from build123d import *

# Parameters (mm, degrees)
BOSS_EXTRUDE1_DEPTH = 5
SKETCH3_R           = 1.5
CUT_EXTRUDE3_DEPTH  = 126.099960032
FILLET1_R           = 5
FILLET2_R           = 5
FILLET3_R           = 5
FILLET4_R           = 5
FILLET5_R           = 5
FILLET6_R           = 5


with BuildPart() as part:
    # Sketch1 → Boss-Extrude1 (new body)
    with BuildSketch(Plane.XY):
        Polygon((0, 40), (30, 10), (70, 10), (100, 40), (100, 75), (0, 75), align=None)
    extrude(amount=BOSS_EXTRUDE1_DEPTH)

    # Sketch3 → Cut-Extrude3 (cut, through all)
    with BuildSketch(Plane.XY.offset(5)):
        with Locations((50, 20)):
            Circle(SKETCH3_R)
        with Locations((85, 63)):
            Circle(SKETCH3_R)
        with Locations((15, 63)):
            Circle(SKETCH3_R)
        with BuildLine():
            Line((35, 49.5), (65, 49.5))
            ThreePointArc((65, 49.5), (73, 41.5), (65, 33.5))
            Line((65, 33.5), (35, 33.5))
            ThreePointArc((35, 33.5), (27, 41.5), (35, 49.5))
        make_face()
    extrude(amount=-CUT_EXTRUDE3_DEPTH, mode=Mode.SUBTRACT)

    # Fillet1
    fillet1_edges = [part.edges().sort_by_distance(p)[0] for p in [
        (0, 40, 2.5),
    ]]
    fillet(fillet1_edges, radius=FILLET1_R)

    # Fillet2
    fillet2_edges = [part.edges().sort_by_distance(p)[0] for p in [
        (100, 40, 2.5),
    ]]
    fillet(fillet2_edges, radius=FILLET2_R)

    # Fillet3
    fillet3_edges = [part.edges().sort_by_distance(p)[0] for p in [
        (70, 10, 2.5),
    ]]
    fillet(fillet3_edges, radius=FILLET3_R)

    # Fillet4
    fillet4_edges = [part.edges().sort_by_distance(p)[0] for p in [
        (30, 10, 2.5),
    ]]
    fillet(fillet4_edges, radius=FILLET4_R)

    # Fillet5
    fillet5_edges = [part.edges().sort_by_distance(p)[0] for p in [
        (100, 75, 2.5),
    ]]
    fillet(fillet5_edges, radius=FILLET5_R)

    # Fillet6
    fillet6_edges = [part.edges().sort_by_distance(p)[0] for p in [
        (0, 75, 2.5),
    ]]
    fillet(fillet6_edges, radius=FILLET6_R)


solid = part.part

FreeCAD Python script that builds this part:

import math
import FreeCAD as App
import Part
import Sketcher

V = App.Vector
Q = App.Units.Quantity


def edges_at(feature, points):
    """Names of the edges that pass closest to the given points."""
    edges = feature.Shape.Edges
    near = lambda p: min(range(len(edges)), key=lambda i: edges[i].distToShape(Part.Vertex(*p))[0])
    return sorted({f"Edge{near(p) + 1}" for p in points})

doc = App.newDocument("Part")
params = doc.addObject("Spreadsheet::Sheet", "Params")
for row, (alias, value) in enumerate([
    ("sketch1_width", "40 mm"),
    ("sketch1_width2", "100 mm"),
    ("sketch1_height", "35 mm"),
    ("pad1_length", "5 mm"),
    ("sketch2_diameter", "3 mm"),
    ("sketch2_radius", "8 mm"),
    ("sketch2_width", "30 mm"),
    ("fillet_radius", "5 mm"),
    ("fillet2_radius", "5 mm"),
    ("fillet3_radius", "5 mm"),
    ("fillet4_radius", "5 mm"),
    ("fillet5_radius", "5 mm"),
    ("fillet6_radius", "5 mm"),
], start=1):
    params.set(f"A{row}", alias)
    params.set(f"B{row}", "=" + value)
    params.setAlias(f"B{row}", alias)

body = doc.addObject("PartDesign::Body", "Body")

# Sketch on XY plane
sketch1 = body.newObject("Sketcher::SketchObject", "Sketch")
sketch1.AttachmentSupport = (doc.getObject("XY_Plane"), [""])
sketch1.MapMode = "FlatFace"
sketch1.addGeometry([
    Part.LineSegment(V(0, 40, 0), V(30, 10, 0)),  # 0
    Part.LineSegment(V(30, 10, 0), V(70, 10, 0)),  # 1
    Part.LineSegment(V(70, 10, 0), V(100, 40, 0)),  # 2
    Part.LineSegment(V(100, 40, 0), V(100, 75, 0)),  # 3
    Part.LineSegment(V(100, 75, 0), V(0, 75, 0)),  # 4
    Part.LineSegment(V(0, 75, 0), V(0, 40, 0)),  # 5
], False)
sketch1.addConstraint([
    Sketcher.Constraint("Coincident", 0, 2, 1, 1),
    Sketcher.Constraint("Coincident", 1, 2, 2, 1),
    Sketcher.Constraint("Coincident", 2, 2, 3, 1),
    Sketcher.Constraint("Coincident", 3, 2, 4, 1),
    Sketcher.Constraint("Coincident", 4, 2, 5, 1),
    Sketcher.Constraint("Coincident", 5, 2, 0, 1),
    Sketcher.Constraint("Horizontal", 1),
    Sketcher.Constraint("Vertical", 3),
    Sketcher.Constraint("Horizontal", 4),
    Sketcher.Constraint("Vertical", 5),
    Sketcher.Constraint("PointOnObject", 4, 2, -2),
    Sketcher.Constraint("Perpendicular", 0, 2),
    Sketcher.Constraint("Horizontal", 2, 2, 5, 2),
    Sketcher.Constraint("Equal", 0, 2),
    Sketcher.Constraint("DistanceX", 1, 1, 1, 2, Q("40 mm")),
    Sketcher.Constraint("DistanceX", 4, 2, 4, 1, Q("100 mm")),
    Sketcher.Constraint("DistanceY", 3, 1, 3, 2, Q("35 mm")),
    Sketcher.Constraint("DistanceY", -1, 1, 0, 2, Q("10 mm")),
])
sketch1.setExpression("Constraints[14]", "Params.sketch1_width")
sketch1.setExpression("Constraints[15]", "Params.sketch1_width2")
sketch1.setExpression("Constraints[16]", "Params.sketch1_height")
pad1 = body.newObject("PartDesign::Pad", "Pad")
pad1.Profile = sketch1
pad1.setExpression("Length", "Params.pad1_length")

# Sketch on XY plane
sketch2 = body.newObject("Sketcher::SketchObject", "Sketch001")
sketch2.AttachmentSupport = (doc.getObject("XY_Plane"), [""])
sketch2.MapMode = "FlatFace"
sketch2.AttachmentOffset = App.Placement(V(0, 0, 5), App.Rotation())
sketch2.addGeometry([
    Part.Circle(V(50, 20, 0), V(0, 0, 1), 1.5),  # 0
    Part.Circle(V(85, 63, 0), V(0, 0, 1), 1.5),  # 1
    Part.Circle(V(15, 63, 0), V(0, 0, 1), 1.5),  # 2
    Part.LineSegment(V(65, 49.5, 0), V(35, 49.5, 0)),  # 3
    Part.ArcOfCircle(Part.Circle(V(35, 41.5, 0), V(0, 0, 1), 8), math.radians(90), math.radians(270)),  # 4
    Part.LineSegment(V(35, 33.5, 0), V(65, 33.5, 0)),  # 5
    Part.ArcOfCircle(Part.Circle(V(65, 41.5, 0), V(0, 0, 1), 8), math.radians(-90), math.radians(90)),  # 6
], False)
sketch2.addConstraint([
    Sketcher.Constraint("Tangent", 3, 2, 4, 1),
    Sketcher.Constraint("Tangent", 4, 2, 5, 1),
    Sketcher.Constraint("Tangent", 5, 2, 6, 1),
    Sketcher.Constraint("Tangent", 6, 2, 3, 1),
    Sketcher.Constraint("Horizontal", 3),
    Sketcher.Constraint("Horizontal", 5),
    Sketcher.Constraint("Equal", 0, 1),
    Sketcher.Constraint("Equal", 1, 2),
    Sketcher.Constraint("Horizontal", 1, 3, 2, 3),
    Sketcher.Constraint("Diameter", 0, Q("3 mm")),
    Sketcher.Constraint("Radius", 4, Q("8 mm")),
    Sketcher.Constraint("DistanceX", 3, 2, 3, 1, Q("30 mm")),
    Sketcher.Constraint("DistanceX", -1, 1, 0, 3, Q("50 mm")),
    Sketcher.Constraint("DistanceY", -1, 1, 0, 3, Q("20 mm")),
    Sketcher.Constraint("DistanceX", -1, 1, 1, 3, Q("85 mm")),
    Sketcher.Constraint("DistanceY", -1, 1, 1, 3, Q("63 mm")),
    Sketcher.Constraint("DistanceX", -1, 1, 2, 3, Q("15 mm")),
    Sketcher.Constraint("DistanceX", -1, 1, 4, 3, Q("35 mm")),
    Sketcher.Constraint("DistanceY", -1, 1, 4, 3, Q("41.5 mm")),
])
sketch2.setExpression("Constraints[9]", "Params.sketch2_diameter")
sketch2.setExpression("Constraints[10]", "Params.sketch2_radius")
sketch2.setExpression("Constraints[11]", "Params.sketch2_width")
pocket1 = body.newObject("PartDesign::Pocket", "Pocket")
pocket1.Profile = sketch2
pocket1.Type = "ThroughAll"
doc.recompute()

fillet = body.newObject("PartDesign::Fillet", "Fillet")
fillet.Base = (pocket1, edges_at(pocket1, [(0, 40, 2.5)]))
fillet.setExpression("Radius", "Params.fillet_radius")
doc.recompute()

fillet2 = body.newObject("PartDesign::Fillet", "Fillet001")
fillet2.Base = (fillet, edges_at(fillet, [(100, 40, 2.5)]))
fillet2.setExpression("Radius", "Params.fillet2_radius")
doc.recompute()

fillet3 = body.newObject("PartDesign::Fillet", "Fillet002")
fillet3.Base = (fillet2, edges_at(fillet2, [(70, 10, 2.5)]))
fillet3.setExpression("Radius", "Params.fillet3_radius")
doc.recompute()

fillet4 = body.newObject("PartDesign::Fillet", "Fillet003")
fillet4.Base = (fillet3, edges_at(fillet3, [(30, 10, 2.5)]))
fillet4.setExpression("Radius", "Params.fillet4_radius")
doc.recompute()

fillet5 = body.newObject("PartDesign::Fillet", "Fillet004")
fillet5.Base = (fillet4, edges_at(fillet4, [(100, 75, 2.5)]))
fillet5.setExpression("Radius", "Params.fillet5_radius")
doc.recompute()

fillet6 = body.newObject("PartDesign::Fillet", "Fillet005")
fillet6.Base = (fillet5, edges_at(fillet5, [(0, 75, 2.5)]))
fillet6.setExpression("Radius", "Params.fillet6_radius")

doc.recompute()
